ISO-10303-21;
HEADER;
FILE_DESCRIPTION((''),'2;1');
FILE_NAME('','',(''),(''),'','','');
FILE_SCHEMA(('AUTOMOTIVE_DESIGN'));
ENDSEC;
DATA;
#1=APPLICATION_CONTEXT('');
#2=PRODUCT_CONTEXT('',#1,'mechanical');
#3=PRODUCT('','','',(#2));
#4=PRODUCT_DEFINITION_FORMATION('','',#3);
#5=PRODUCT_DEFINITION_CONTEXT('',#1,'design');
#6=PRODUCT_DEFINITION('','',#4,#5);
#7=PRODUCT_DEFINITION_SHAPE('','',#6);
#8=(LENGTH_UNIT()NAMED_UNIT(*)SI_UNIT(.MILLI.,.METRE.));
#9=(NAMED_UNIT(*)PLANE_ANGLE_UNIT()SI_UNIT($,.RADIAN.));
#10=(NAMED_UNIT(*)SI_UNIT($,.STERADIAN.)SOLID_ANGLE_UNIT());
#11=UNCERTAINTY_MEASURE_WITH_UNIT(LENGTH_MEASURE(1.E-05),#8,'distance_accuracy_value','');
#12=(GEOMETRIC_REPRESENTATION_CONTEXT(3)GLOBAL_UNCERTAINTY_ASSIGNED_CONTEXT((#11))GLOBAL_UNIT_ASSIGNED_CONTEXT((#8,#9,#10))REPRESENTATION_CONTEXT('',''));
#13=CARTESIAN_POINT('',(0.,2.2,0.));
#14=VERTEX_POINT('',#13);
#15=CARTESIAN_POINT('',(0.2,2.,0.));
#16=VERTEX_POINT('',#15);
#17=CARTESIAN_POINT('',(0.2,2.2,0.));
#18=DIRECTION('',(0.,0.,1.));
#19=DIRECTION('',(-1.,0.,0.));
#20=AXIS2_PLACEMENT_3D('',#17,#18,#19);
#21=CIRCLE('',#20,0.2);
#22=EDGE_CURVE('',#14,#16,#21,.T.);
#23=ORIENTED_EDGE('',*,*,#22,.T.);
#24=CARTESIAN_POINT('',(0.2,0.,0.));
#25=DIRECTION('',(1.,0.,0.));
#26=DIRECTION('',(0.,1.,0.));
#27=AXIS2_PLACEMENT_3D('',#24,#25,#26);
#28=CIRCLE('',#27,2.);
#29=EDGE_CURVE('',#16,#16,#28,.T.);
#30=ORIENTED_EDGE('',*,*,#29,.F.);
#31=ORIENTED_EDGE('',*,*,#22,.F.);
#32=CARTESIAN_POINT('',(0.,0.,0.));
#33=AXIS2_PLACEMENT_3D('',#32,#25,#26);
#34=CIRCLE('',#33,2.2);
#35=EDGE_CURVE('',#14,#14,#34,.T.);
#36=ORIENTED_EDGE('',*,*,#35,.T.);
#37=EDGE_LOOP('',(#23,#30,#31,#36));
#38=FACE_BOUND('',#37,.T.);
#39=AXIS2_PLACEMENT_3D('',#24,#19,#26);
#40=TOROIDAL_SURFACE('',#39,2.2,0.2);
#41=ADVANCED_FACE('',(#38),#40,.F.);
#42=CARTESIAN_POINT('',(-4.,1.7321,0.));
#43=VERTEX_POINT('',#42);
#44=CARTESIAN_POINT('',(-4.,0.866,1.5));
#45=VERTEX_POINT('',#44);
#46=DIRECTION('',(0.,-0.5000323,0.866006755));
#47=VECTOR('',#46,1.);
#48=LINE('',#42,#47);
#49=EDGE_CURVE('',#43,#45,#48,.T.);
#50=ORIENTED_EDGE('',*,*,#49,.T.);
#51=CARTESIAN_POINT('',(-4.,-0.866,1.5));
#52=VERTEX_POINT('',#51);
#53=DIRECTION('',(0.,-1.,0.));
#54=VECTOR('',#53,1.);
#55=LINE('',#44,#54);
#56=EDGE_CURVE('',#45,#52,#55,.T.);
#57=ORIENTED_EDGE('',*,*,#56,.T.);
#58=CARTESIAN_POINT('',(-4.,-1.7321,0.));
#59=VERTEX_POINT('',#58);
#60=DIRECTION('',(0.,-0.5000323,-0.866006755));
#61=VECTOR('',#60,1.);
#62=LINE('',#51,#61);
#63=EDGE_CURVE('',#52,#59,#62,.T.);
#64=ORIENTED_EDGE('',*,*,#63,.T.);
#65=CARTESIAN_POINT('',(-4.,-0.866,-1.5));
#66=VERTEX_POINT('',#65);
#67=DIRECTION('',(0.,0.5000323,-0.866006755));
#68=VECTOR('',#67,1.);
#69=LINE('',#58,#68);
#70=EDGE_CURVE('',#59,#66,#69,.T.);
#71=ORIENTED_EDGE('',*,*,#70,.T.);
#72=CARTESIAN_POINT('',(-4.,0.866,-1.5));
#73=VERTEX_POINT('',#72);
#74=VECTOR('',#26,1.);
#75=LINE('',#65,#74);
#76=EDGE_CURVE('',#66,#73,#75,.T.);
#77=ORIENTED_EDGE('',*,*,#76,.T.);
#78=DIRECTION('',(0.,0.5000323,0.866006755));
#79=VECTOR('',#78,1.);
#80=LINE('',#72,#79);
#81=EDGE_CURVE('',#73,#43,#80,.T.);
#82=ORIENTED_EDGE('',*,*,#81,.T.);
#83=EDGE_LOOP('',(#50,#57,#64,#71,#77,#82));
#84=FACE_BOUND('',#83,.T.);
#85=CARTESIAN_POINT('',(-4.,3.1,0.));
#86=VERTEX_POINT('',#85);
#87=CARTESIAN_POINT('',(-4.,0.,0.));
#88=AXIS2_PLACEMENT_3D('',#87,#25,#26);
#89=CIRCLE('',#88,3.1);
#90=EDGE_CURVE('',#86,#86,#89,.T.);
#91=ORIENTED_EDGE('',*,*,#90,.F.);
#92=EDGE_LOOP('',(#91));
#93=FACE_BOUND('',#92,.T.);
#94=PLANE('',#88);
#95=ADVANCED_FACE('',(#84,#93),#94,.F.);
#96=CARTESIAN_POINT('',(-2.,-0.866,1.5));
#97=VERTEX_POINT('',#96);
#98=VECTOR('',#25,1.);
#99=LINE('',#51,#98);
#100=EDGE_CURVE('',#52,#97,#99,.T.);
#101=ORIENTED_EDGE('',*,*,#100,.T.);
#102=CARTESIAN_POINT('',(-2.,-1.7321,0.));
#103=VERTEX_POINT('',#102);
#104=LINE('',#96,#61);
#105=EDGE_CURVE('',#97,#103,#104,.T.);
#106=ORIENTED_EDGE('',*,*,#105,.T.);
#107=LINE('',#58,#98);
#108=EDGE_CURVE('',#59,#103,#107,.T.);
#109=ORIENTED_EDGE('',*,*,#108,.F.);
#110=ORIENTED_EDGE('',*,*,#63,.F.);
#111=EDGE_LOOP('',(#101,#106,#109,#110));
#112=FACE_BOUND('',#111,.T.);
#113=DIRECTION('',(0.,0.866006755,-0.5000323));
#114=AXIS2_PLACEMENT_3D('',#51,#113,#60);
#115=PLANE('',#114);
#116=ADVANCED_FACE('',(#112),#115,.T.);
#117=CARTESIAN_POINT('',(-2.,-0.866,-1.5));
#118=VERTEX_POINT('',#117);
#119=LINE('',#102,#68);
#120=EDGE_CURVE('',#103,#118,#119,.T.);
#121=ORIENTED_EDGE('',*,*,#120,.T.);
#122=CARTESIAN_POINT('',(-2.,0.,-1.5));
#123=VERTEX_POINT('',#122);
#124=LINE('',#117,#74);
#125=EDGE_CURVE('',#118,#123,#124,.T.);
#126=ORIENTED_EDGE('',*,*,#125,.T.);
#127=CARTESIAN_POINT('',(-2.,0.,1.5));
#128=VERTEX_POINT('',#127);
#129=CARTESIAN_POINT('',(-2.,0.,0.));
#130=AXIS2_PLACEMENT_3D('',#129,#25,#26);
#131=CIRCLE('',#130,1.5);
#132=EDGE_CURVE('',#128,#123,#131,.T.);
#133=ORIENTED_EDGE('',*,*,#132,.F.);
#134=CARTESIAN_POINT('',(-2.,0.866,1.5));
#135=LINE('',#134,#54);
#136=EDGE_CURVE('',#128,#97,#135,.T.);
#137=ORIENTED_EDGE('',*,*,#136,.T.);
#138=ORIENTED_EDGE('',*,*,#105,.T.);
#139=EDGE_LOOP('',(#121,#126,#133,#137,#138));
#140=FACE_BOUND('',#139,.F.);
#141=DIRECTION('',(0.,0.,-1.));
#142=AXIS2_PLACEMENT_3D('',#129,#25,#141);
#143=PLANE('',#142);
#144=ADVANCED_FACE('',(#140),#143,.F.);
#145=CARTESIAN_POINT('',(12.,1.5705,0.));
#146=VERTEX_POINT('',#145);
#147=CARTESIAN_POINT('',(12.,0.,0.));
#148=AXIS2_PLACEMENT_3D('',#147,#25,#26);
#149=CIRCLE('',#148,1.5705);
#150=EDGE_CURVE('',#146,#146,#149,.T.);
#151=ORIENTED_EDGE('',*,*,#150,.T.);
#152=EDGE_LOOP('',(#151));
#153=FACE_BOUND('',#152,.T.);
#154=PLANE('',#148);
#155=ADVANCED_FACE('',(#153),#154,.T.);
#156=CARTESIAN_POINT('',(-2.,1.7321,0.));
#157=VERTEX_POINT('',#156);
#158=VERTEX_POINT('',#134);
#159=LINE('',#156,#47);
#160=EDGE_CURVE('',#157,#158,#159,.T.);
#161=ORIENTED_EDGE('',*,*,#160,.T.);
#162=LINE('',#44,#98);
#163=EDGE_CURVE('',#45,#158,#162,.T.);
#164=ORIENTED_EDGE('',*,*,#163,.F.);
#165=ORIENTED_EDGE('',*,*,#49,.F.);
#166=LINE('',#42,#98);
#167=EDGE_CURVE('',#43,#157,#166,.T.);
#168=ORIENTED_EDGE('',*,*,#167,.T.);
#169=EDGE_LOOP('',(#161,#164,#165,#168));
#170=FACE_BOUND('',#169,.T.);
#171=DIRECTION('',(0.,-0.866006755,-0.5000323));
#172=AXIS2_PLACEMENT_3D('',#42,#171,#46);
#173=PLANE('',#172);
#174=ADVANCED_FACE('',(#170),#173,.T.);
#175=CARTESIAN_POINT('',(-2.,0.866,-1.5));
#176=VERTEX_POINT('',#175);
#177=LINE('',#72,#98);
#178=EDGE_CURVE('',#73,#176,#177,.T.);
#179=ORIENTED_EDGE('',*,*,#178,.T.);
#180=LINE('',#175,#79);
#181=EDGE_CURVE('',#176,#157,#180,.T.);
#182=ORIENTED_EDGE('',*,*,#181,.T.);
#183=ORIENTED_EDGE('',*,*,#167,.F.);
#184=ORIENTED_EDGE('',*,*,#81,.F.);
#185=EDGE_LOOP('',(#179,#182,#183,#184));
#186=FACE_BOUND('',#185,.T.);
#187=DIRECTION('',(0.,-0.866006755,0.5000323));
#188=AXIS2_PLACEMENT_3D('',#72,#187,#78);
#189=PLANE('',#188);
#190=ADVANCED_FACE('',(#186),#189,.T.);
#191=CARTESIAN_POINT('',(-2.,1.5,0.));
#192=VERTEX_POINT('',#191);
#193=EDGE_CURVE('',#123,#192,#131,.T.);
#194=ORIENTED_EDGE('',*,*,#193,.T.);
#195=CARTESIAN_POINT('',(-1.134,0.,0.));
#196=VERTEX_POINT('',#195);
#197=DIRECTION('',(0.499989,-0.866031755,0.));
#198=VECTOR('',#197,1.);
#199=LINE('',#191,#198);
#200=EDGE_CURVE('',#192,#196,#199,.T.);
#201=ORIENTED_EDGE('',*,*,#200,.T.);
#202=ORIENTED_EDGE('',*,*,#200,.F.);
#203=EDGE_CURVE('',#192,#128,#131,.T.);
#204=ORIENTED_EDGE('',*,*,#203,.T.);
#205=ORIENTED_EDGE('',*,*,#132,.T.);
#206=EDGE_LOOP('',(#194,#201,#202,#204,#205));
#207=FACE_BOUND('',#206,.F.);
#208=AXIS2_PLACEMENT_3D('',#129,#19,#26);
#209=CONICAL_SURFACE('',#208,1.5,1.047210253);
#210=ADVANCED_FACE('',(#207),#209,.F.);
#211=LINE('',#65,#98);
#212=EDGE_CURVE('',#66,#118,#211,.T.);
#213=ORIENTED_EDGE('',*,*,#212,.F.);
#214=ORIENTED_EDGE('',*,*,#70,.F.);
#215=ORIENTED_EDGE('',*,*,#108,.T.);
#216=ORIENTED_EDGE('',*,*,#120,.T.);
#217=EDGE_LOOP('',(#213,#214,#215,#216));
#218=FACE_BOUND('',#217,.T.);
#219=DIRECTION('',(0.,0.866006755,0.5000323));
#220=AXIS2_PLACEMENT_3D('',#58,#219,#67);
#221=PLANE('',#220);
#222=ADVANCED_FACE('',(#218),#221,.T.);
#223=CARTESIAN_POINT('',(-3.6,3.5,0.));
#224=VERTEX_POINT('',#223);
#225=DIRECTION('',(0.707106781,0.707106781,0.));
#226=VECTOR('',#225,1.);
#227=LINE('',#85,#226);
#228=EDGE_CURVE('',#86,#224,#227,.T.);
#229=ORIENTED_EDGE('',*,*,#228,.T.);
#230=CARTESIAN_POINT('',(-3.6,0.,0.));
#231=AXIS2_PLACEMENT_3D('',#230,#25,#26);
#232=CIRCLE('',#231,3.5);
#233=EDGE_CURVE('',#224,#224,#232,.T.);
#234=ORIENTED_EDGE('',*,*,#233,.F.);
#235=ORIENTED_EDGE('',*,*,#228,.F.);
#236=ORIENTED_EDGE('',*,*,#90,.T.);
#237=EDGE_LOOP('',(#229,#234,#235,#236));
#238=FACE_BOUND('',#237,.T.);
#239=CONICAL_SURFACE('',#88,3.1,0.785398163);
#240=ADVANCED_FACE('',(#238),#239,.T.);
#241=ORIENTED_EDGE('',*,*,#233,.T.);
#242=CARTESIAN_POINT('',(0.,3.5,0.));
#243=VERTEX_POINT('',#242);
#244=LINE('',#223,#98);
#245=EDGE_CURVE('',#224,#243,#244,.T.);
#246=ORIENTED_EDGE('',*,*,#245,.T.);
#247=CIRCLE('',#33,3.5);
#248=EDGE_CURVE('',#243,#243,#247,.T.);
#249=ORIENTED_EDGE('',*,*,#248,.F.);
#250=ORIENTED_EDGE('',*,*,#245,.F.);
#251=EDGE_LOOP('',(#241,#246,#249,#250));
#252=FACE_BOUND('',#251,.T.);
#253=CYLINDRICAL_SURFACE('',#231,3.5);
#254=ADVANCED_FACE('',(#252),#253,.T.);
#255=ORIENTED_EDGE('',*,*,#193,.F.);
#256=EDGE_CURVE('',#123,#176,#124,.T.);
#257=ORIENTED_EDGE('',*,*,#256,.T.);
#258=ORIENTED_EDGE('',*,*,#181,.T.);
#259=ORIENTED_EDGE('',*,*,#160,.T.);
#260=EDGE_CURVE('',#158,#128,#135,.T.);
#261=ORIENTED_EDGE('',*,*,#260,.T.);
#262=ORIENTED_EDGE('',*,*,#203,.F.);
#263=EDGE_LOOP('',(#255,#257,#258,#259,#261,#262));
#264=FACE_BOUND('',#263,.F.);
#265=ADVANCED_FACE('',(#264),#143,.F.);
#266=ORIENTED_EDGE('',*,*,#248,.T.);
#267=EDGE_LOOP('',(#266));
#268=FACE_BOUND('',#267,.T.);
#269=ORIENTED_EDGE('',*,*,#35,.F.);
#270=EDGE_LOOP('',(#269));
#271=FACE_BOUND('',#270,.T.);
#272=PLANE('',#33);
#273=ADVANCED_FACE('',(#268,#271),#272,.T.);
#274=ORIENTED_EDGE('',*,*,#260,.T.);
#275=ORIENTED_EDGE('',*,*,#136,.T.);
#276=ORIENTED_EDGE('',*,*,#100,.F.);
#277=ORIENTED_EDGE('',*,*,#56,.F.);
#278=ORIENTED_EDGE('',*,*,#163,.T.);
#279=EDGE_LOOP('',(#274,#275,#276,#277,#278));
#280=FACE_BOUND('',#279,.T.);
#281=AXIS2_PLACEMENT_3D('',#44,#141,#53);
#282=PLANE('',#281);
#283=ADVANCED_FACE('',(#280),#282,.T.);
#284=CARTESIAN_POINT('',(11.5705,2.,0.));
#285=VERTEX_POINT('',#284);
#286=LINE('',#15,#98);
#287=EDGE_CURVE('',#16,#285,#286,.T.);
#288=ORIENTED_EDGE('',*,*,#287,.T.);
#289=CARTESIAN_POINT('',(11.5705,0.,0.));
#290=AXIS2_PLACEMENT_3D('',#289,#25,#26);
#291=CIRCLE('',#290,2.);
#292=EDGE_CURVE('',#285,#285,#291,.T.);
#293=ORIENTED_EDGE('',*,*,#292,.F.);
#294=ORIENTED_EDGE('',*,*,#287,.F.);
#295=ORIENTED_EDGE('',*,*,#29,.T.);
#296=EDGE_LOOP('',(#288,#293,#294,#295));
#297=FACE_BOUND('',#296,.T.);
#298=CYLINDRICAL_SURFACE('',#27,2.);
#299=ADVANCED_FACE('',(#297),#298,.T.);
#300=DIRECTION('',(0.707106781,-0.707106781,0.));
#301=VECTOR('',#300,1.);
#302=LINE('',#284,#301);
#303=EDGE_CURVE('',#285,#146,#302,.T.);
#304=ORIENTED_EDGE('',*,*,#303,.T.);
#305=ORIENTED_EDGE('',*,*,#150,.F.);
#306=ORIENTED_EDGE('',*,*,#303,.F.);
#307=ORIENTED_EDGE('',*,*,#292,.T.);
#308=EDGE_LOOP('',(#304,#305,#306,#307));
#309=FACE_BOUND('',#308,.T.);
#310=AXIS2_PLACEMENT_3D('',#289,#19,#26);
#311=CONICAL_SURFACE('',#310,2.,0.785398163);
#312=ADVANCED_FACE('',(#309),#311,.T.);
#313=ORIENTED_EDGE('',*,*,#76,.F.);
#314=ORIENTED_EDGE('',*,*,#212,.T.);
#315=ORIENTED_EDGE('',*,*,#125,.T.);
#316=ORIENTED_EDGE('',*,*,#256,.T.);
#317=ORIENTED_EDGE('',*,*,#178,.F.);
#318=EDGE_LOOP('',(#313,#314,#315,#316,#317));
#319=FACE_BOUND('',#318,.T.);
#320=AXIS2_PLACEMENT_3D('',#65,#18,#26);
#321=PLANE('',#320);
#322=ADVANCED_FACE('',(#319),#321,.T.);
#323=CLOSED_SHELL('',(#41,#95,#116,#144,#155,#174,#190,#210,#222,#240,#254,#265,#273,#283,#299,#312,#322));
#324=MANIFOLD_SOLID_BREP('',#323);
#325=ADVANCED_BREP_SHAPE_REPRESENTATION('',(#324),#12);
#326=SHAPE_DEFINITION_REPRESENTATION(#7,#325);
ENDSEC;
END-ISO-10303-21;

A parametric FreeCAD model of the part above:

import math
import FreeCAD as App
import Part
import Sketcher
Q = App.Units.Quantity


def add_polygon(sketch, points):
    """Adds a closed chain of lines whose ends are joined by coincident constraints."""
    first, n = sketch.GeometryCount, len(points)
    for a, b in zip(points, points[1:] + points[:1]):
        sketch.addGeometry(Part.LineSegment(App.Vector(*a, 0), App.Vector(*b, 0)), False)
    for i in range(n):
        sketch.addConstraint(Sketcher.Constraint("Coincident", first + i, 2, first + (i + 1) % n, 1))

doc = App.newDocument("Part")
body = doc.addObject("PartDesign::Body", "Body")

# Sketch on XY plane
sketch1 = doc.addObject("Sketcher::SketchObject", "Sketch")
body.addObject(sketch1)
sketch1.AttachmentSupport = (doc.XY_Plane, [""])
sketch1.MapMode = "FlatFace"
sketch1.addGeometry([
    Part.LineSegment(App.Vector(-4, 0, 0), App.Vector(12, 0, 0)),  # 0
    Part.LineSegment(App.Vector(12, 0, 0), App.Vector(12, 1.57, 0)),  # 1
    Part.LineSegment(App.Vector(12, 1.57, 0), App.Vector(11.57, 2, 0)),  # 2
    Part.LineSegment(App.Vector(11.57, 2, 0), App.Vector(0.2, 2, 0)),  # 3
    Part.ArcOfCircle(Part.Circle(App.Vector(0.2, 2.2, 0), App.Vector(0, 0, 1), 0.2), math.radians(180), math.radians(270)),  # 4
    Part.LineSegment(App.Vector(0, 2.2, 0), App.Vector(0, 3.5, 0)),  # 5
    Part.LineSegment(App.Vector(0, 3.5, 0), App.Vector(-3.6, 3.5, 0)),  # 6
    Part.LineSegment(App.Vector(-3.6, 3.5, 0), App.Vector(-4, 3.1, 0)),  # 7
    Part.LineSegment(App.Vector(-4, 3.1, 0), App.Vector(-4, 0, 0)),  # 8
], False)
sketch1.addConstraint([
    Sketcher.Constraint("Coincident", 0, 2, 1, 1),
    Sketcher.Constraint("Coincident", 1, 2, 2, 1),
    Sketcher.Constraint("Coincident", 2, 2, 3, 1),
    Sketcher.Constraint("Tangent", 3, 2, 4, 2),
    Sketcher.Constraint("Tangent", 4, 1, 5, 1),
    Sketcher.Constraint("Coincident", 5, 2, 6, 1),
    Sketcher.Constraint("Coincident", 6, 2, 7, 1),
    Sketcher.Constraint("Coincident", 7, 2, 8, 1),
    Sketcher.Constraint("Coincident", 8, 2, 0, 1),
    Sketcher.Constraint("Horizontal", 0),
    Sketcher.Constraint("Vertical", 1),
    Sketcher.Constraint("Horizontal", 3),
    Sketcher.Constraint("Vertical", 5),
    Sketcher.Constraint("Horizontal", 6),
    Sketcher.Constraint("Vertical", 8),
    Sketcher.Constraint("PointOnObject", 0, 2, -1),
    Sketcher.Constraint("PointOnObject", 4, 1, -2),
    Sketcher.Constraint("Perpendicular", 2, 7),
    Sketcher.Constraint("Radius", 4, Q("0.2 mm")),
    Sketcher.Constraint("DistanceX", 0, 1, 0, 2, Q("16 mm")),
    Sketcher.Constraint("Angle", 2, Q("135 deg")),
    Sketcher.Constraint("DistanceX", 6, 2, 6, 1, Q("3.6 mm")),
    Sketcher.Constraint("DistanceY", 5, 1, 5, 2, Q("1.3 mm")),
    Sketcher.Constraint("DistanceY", 8, 2, 8, 1, Q("3.1 mm")),
    Sketcher.Constraint("DistanceX", -1, 1, 0, 2, Q("12 mm")),
    Sketcher.Constraint("DistanceX", 3, 2, 3, 1, Q("11.3705 mm")),
])
revolution = doc.addObject("PartDesign::Revolution", "Revolution")
body.addObject(revolution)
revolution.Profile = sketch1
revolution.ReferenceAxis = (sketch1, ["H_Axis"])
revolution.Angle = 360

# Sketch on YZ plane
sketch2 = doc.addObject("Sketcher::SketchObject", "Sketch001")
body.addObject(sketch2)
sketch2.AttachmentSupport = (doc.YZ_Plane, [""])
sketch2.MapMode = "FlatFace"
sketch2.AttachmentOffset = App.Placement(App.Vector(0, 0, -4), App.Rotation())
add_polygon(sketch2, [(0.9, 1.5), (-0.9, 1.5), (-1.7, 0), (-0.9, -1.5), (0.9, -1.5), (1.7, 0)])  # lines 0-5
sketch2.addConstraint([
    Sketcher.Constraint("Horizontal", 0),
    Sketcher.Constraint("Horizontal", 3),
    Sketcher.Constraint("Symmetric", 0, 2, 3, 2, -1, 1),
    Sketcher.Constraint("Symmetric", 1, 2, 4, 2, -1, 1),
    Sketcher.Constraint("PointOnObject", 1, 2, -1),
    Sketcher.Constraint("Parallel", 2, 5),
    Sketcher.Constraint("Vertical", 0, 2, 2, 2),
    Sketcher.Constraint("DistanceY", 2, 2, 0, 2, Q("3 mm")),
    Sketcher.Constraint("DistanceX", 0, 2, 0, 1, Q("1.732 mm")),
    Sketcher.Constraint("Distance", 1, Q("1.732 mm")),
])
pocket1 = doc.addObject("PartDesign::Pocket", "Pocket")
body.addObject(pocket1)
pocket1.Profile = sketch2
pocket1.Length = 2
pocket1.Reversed = True

# Sketch on XY plane
sketch3 = doc.addObject("Sketcher::SketchObject", "Sketch002")
body.addObject(sketch3)
sketch3.AttachmentSupport = (doc.XY_Plane, [""])
sketch3.MapMode = "FlatFace"
add_polygon(sketch3, [(-2, 0), (-1.1, 0), (-2, 1.5)])  # lines 0-2
sketch3.addConstraint([
    Sketcher.Constraint("Horizontal", 0),
    Sketcher.Constraint("Vertical", 2),
    Sketcher.Constraint("PointOnObject", 0, 2, -1),
    Sketcher.Constraint("Angle", 1, Q("119.9993 deg")),
    Sketcher.Constraint("DistanceY", 2, 2, 2, 1, Q("1.5 mm")),
    Sketcher.Constraint("DistanceX", 1, 2, -1, 1, Q("2 mm")),
])
groove = doc.addObject("PartDesign::Groove", "Groove")
body.addObject(groove)
groove.Profile = sketch3
groove.ReferenceAxis = (sketch3, ["H_Axis"])
groove.Angle = 360

doc.recompute()
